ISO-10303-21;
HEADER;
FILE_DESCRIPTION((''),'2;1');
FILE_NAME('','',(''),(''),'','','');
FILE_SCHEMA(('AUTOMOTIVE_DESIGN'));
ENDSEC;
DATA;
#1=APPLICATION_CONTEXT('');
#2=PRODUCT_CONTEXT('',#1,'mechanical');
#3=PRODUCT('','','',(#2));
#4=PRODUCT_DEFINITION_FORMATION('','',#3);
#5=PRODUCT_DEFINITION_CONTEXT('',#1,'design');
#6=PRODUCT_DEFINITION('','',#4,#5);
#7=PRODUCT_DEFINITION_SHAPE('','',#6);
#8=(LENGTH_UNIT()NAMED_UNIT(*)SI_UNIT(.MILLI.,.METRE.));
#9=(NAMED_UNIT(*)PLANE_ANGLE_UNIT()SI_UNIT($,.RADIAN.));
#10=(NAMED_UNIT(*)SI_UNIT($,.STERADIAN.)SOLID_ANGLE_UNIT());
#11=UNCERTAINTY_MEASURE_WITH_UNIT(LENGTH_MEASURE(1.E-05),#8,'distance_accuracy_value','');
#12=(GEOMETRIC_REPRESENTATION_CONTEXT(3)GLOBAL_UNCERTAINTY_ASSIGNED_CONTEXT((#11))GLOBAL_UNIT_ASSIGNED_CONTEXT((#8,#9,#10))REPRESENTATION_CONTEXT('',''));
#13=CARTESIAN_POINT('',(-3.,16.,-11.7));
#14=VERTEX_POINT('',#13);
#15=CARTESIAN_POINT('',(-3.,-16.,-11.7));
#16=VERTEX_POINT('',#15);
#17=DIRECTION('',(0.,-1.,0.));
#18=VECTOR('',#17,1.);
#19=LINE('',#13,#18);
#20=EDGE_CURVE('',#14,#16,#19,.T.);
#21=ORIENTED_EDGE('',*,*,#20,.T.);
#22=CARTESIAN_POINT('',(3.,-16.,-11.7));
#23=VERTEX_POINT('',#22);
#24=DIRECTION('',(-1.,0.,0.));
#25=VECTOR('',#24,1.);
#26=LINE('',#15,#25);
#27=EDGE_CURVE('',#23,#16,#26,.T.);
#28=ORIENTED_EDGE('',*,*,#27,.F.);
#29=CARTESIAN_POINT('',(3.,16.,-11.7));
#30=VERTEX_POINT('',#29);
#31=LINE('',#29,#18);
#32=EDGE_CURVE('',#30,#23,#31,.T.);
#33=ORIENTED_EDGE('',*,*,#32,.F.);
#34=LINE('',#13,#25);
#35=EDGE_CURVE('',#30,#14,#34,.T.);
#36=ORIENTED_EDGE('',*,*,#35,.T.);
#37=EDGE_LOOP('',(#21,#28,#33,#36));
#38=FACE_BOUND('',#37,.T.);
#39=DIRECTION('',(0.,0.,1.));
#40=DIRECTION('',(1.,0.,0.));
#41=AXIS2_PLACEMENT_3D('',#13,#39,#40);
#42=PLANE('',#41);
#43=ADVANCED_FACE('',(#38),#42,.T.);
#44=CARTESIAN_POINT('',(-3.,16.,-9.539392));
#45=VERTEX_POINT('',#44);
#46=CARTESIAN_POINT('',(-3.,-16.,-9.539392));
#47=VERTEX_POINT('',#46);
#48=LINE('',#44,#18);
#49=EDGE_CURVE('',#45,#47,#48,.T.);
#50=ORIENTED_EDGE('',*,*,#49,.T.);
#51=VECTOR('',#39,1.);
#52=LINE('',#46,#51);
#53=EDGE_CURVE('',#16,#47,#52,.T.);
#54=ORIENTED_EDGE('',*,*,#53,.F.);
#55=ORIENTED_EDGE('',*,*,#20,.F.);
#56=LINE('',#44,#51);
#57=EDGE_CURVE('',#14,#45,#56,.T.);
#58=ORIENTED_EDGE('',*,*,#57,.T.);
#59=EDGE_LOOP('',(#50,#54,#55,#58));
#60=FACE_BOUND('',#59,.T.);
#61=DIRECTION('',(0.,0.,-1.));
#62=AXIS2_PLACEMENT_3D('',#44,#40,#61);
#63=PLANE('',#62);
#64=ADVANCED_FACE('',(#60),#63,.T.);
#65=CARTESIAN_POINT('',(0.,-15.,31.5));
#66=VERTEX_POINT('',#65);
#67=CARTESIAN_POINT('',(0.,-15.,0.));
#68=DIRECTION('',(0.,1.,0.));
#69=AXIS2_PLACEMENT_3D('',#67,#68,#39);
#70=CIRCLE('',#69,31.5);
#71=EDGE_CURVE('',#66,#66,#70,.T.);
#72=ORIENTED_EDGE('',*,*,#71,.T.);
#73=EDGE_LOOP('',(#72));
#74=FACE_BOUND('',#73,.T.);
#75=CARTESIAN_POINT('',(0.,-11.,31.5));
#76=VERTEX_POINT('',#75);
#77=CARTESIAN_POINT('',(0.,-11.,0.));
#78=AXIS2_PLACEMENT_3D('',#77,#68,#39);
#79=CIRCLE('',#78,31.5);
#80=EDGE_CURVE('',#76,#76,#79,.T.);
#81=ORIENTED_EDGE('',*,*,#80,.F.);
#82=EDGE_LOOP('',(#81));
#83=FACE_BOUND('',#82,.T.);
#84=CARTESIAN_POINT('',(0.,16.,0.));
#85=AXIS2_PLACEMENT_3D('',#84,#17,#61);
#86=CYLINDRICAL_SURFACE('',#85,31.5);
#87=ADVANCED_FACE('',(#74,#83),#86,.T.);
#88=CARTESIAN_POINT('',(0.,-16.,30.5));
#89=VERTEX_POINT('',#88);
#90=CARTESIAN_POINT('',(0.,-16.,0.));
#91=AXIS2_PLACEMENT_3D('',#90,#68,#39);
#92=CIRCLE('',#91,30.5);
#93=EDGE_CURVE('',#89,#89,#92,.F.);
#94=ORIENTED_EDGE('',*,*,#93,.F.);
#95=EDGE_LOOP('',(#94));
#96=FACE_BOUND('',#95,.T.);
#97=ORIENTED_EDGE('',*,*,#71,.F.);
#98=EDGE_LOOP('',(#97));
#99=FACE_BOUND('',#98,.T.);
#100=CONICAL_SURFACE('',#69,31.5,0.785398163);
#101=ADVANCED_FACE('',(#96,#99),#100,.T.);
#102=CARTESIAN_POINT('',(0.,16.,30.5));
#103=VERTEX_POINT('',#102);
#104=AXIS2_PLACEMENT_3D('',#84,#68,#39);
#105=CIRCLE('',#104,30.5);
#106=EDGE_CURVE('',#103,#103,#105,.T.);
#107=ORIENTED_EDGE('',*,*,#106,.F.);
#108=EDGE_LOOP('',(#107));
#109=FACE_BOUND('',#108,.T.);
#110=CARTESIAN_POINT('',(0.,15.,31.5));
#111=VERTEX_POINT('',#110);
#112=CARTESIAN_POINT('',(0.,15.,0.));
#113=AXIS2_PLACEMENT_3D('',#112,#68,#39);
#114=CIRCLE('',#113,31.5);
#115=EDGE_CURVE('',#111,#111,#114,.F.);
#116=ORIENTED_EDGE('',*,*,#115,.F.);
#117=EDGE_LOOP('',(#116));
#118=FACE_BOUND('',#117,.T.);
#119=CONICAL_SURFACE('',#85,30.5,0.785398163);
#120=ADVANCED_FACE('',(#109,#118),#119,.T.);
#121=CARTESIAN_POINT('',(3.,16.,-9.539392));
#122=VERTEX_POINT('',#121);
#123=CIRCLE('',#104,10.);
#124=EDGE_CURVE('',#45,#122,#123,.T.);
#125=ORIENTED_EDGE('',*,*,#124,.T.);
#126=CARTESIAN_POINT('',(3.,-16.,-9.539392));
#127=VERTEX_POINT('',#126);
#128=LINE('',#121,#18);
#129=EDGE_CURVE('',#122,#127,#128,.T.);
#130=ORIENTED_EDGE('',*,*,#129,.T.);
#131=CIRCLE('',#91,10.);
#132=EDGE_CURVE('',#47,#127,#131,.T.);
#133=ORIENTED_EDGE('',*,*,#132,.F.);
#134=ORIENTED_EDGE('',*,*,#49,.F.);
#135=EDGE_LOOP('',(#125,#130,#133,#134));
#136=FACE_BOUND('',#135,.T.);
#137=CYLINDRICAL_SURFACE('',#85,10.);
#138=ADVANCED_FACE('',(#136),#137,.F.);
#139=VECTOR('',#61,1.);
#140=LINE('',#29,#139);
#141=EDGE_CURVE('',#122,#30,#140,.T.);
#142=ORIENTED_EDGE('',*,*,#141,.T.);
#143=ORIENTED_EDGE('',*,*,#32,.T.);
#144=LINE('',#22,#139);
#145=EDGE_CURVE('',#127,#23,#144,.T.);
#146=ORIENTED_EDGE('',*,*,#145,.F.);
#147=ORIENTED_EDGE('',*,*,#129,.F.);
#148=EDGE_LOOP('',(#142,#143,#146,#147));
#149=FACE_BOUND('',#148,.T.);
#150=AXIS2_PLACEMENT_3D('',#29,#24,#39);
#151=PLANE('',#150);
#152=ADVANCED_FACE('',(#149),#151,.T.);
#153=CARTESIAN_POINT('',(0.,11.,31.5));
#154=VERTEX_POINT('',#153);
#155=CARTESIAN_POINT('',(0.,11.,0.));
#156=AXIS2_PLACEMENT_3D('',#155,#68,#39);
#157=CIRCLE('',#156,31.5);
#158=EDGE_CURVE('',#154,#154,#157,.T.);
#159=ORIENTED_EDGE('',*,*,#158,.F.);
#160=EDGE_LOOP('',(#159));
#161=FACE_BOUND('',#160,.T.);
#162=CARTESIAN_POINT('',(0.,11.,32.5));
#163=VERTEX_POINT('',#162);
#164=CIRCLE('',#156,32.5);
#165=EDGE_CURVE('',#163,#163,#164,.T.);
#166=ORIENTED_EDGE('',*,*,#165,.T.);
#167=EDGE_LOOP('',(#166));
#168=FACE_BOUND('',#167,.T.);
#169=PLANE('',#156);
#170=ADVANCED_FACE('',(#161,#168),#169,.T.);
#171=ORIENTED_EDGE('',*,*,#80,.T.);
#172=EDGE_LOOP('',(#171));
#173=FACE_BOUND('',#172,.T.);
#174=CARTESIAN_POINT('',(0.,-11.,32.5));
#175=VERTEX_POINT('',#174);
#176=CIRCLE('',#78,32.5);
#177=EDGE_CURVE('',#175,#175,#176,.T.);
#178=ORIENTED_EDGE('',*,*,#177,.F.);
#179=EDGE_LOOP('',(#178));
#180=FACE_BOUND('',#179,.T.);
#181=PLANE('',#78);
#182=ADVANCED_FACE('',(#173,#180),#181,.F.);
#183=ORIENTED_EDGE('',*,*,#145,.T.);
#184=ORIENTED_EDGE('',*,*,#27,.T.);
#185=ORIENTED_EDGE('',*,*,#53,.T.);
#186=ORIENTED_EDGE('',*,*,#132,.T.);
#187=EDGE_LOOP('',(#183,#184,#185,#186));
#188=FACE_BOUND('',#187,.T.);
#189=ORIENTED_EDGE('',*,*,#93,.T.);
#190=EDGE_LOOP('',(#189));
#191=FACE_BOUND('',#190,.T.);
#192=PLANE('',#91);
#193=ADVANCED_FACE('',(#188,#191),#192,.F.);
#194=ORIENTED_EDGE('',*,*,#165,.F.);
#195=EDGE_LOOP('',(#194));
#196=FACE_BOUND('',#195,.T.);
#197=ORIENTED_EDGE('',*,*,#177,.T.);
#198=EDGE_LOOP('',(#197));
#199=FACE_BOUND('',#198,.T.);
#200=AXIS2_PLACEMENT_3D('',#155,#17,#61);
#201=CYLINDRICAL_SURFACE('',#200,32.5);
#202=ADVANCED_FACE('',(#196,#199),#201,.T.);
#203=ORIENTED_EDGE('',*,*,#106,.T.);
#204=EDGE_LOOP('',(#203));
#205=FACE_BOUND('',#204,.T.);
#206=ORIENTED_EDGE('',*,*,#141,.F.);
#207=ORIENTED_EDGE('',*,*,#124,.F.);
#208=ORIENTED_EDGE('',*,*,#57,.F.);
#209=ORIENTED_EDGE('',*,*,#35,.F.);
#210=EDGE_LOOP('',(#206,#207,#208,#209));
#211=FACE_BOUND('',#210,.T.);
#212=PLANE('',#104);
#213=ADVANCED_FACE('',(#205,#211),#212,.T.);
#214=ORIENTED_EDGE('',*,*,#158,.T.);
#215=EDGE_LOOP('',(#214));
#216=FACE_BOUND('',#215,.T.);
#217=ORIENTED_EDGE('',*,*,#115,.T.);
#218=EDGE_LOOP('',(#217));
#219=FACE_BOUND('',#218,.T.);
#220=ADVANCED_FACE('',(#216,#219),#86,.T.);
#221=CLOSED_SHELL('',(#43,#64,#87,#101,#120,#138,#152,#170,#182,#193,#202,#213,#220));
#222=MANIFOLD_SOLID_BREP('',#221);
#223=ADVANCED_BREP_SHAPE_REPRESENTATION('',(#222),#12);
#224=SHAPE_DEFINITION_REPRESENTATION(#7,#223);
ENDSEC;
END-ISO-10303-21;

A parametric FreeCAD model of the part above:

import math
import FreeCAD as App
import Part
import Sketcher


def edges_at(feature, points):
    """Names of the edges that pass closest to the given points."""
    edges = feature.Shape.Edges
    near = lambda p: min(range(len(edges)), key=lambda i: edges[i].distToShape(Part.Vertex(*p))[0])
    return sorted({f"Edge{near(p) + 1}" for p in points})

doc = App.newDocument("Part")
body = doc.addObject("PartDesign::Body", "Body")

# Sketch on XZ plane
sketch1 = body.newObject("Sketcher::SketchObject", "Sketch")
sketch1.AttachmentSupport = (doc.getObject("XZ_Plane"), [""])
sketch1.MapMode = "FlatFace"
sketch1.addGeometry([
    Part.Circle(App.Vector(0, 0, 0), App.Vector(0, 0, 1), 31.5),  # 0
    Part.ArcOfCircle(Part.Circle(App.Vector(0, 0, 0), App.Vector(0, 0, 1), 10), math.radians(-73), math.radians(253)),  # 1
    Part.LineSegment(App.Vector(-3, -9.5, 0), App.Vector(-3, -11.7, 0)),  # 2
    Part.LineSegment(App.Vector(-3, -11.7, 0), App.Vector(3, -11.7, 0)),  # 3
    Part.LineSegment(App.Vector(3, -11.7, 0), App.Vector(3, -9.5, 0)),  # 4
], False)
sketch1.addConstraint([
    Sketcher.Constraint("Coincident", 1, 2, 2, 1),
    Sketcher.Constraint("Coincident", 2, 2, 3, 1),
    Sketcher.Constraint("Coincident", 3, 2, 4, 1),
    Sketcher.Constraint("Coincident", 4, 2, 1, 1),
    Sketcher.Constraint("Vertical", 2),
    Sketcher.Constraint("Horizontal", 3),
    Sketcher.Constraint("Vertical", 4),
    Sketcher.Constraint("Coincident", 0, 3, -1, 1),
    Sketcher.Constraint("Coincident", 1, 3, -1, 1),
    Sketcher.Constraint("Horizontal", 1, 2, 4, 2),
    Sketcher.Constraint("Diameter", 0, 63.0),
    Sketcher.Constraint("Radius", 1, 10.0),
    Sketcher.Constraint("DistanceX", 3, 1, 3, 2, 6.0),
    Sketcher.Constraint("DistanceY", 2, 2, -1, 1, 11.7),
])
pad1 = body.newObject("PartDesign::Pad", "Pad")
pad1.Profile = sketch1
pad1.Length = 32
pad1.Midplane = True

# Sketch on XZ plane
sketch2 = body.newObject("Sketcher::SketchObject", "Sketch001")
sketch2.AttachmentSupport = (doc.getObject("XZ_Plane"), [""])
sketch2.MapMode = "FlatFace"
sketch2.addGeometry([
    Part.Circle(App.Vector(0, 0, 0), App.Vector(0, 0, 1), 32),
    Part.Circle(App.Vector(0, 0, 0), App.Vector(0, 0, 1), 32),
], False)
sketch2.addConstraint([
    Sketcher.Constraint("Coincident", 0, 3, -1, 1),
    Sketcher.Constraint("Coincident", 1, 3, -1, 1),
    Sketcher.Constraint("Diameter", 0, 65.0),
    Sketcher.Constraint("Diameter", 1, 63.0),
])
pad2 = body.newObject("PartDesign::Pad", "Pad001")
pad2.Profile = sketch2
pad2.Length = 22
pad2.Midplane = True
doc.recompute()

chamfer = body.newObject("PartDesign::Chamfer", "Chamfer")
chamfer.Base = (pad2, edges_at(pad2, [(0, -16, -31.5), (0, 16, -31.5)]))
chamfer.Size = 1

doc.recompute()
